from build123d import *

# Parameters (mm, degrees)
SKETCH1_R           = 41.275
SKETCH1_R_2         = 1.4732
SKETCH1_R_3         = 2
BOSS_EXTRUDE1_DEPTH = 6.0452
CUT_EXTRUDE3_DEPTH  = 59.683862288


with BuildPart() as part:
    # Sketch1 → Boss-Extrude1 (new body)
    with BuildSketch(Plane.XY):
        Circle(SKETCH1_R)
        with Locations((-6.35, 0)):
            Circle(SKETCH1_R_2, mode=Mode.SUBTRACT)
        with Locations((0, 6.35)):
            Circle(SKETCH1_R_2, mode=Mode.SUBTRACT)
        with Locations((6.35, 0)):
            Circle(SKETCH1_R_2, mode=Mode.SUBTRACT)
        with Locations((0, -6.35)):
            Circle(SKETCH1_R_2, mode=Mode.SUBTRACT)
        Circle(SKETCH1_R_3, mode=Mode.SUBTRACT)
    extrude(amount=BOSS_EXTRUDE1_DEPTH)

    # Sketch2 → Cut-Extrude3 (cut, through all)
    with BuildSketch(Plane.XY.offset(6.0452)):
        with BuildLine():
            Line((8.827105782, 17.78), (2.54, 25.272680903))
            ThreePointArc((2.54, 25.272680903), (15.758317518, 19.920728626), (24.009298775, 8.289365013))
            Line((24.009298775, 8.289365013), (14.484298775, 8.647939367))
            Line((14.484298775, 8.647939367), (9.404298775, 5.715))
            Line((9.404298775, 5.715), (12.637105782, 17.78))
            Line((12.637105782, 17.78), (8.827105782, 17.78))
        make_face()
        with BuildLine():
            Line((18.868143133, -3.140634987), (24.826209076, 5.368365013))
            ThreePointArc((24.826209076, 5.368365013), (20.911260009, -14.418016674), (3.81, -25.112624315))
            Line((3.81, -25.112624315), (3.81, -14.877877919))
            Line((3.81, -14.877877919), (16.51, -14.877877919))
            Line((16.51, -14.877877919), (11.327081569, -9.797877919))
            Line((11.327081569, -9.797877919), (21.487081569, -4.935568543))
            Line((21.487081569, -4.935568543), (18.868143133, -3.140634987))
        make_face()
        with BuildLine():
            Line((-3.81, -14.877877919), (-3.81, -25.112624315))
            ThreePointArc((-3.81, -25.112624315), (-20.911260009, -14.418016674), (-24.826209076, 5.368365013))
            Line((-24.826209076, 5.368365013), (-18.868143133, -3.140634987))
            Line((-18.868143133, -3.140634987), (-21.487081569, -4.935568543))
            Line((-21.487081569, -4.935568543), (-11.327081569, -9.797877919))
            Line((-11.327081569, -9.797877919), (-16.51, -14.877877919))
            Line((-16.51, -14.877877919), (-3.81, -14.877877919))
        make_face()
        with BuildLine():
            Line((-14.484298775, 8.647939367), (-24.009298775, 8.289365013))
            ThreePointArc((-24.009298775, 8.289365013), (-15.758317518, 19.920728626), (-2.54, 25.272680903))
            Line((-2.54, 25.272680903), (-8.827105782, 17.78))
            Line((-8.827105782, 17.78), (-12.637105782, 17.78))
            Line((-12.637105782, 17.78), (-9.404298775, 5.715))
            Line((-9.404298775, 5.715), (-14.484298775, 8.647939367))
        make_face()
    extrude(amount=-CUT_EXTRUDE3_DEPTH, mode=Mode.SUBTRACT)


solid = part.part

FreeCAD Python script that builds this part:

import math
import FreeCAD as App
import Part
import Sketcher
Q = App.Units.Quantity

doc = App.newDocument("Part")
params = doc.addObject("Spreadsheet::Sheet", "Params")
for row, (alias, value) in enumerate([
    ("sketch1_diameter", "3.25 in"),
    ("sketch1_diameter2", "0.116 in"),
    ("pad1_length", "0.238 in"),
    ("sketch2_radius", "1 in"),
    ("sketch2_width", "0.5 in"),
    ("sketch2_width2", "0.15 in"),
    ("sketch2_length", "0.125 in"),
], start=1):
    params.set(f"A{row}", alias)
    params.set(f"B{row}", "=" + value)
    params.setAlias(f"B{row}", alias)

body = doc.addObject("PartDesign::Body", "Body")

# Sketch on XY plane
sketch1 = doc.addObject("Sketcher::SketchObject", "Sketch")
body.addObject(sketch1)
sketch1.AttachmentSupport = (doc.XY_Plane, [""])
sketch1.MapMode = "FlatFace"
sketch1.addGeometry([
    Part.Circle(App.Vector(0, 0, 0), App.Vector(0, 0, 1), 41.275),  # 0
    Part.Circle(App.Vector(0, -6.35, 0), App.Vector(0, 0, 1), 1.4732),  # 1
    Part.Circle(App.Vector(-6.35, 0, 0), App.Vector(0, 0, 1), 1.4732),  # 2
    Part.Circle(App.Vector(0, 0, 0), App.Vector(0, 0, 1), 2),  # 3
    Part.Circle(App.Vector(6.35, 0, 0), App.Vector(0, 0, 1), 1.4732),  # 4
    Part.Circle(App.Vector(0, 6.35, 0), App.Vector(0, 0, 1), 1.4732),  # 5
], False)
sketch1.addConstraint([
    Sketcher.Constraint("Coincident", 0, 3, -1, 1),
    Sketcher.Constraint("Coincident", 3, 3, -1, 1),
    Sketcher.Constraint("Equal", 1, 2),
    Sketcher.Constraint("Equal", 2, 4),
    Sketcher.Constraint("Equal", 4, 5),
    Sketcher.Constraint("Symmetric", 2, 3, 4, 3, -1, 1),
    Sketcher.Constraint("Symmetric", 1, 3, 5, 3, -1, 1),
    Sketcher.Constraint("PointOnObject", 1, 3, -2),
    Sketcher.Constraint("PointOnObject", 2, 3, -1),
    Sketcher.Constraint("Diameter", 0, Q("3.25 in")),
    Sketcher.Constraint("Diameter", 1, Q("0.116 in")),
    Sketcher.Constraint("DistanceX", 2, 3, 4, 3, Q("0.5 in")),
    Sketcher.Constraint("DistanceY", 1, 3, 5, 3, Q("0.5 in")),
    Sketcher.Constraint("Diameter", 3, 4.0),
])
sketch1.setExpression("Constraints[9]", "Params.sketch1_diameter")
sketch1.setExpression("Constraints[10]", "Params.sketch1_diameter2")
pad1 = doc.addObject("PartDesign::Pad", "Pad")
body.addObject(pad1)
pad1.Profile = sketch1
pad1.setExpression("Length", "Params.pad1_length")

# Sketch on XY plane
sketch2 = doc.addObject("Sketcher::SketchObject", "Sketch001")
body.addObject(sketch2)
sketch2.AttachmentSupport = (doc.XY_Plane, [""])
sketch2.MapMode = "FlatFace"
sketch2.AttachmentOffset = App.Placement(App.Vector(0, 0, 0.238 * 25.4), App.Rotation())
sketch2.addGeometry([
    Part.LineSegment(App.Vector(2.54, 25.272681, 0), App.Vector(8.827106, 17.78, 0)),  # 0
    Part.LineSegment(App.Vector(8.827106, 17.78, 0), App.Vector(12.637106, 17.78, 0)),  # 1
    Part.LineSegment(App.Vector(12.637106, 17.78, 0), App.Vector(9.404299, 5.715, 0)),  # 2
    Part.LineSegment(App.Vector(9.404299, 5.715, 0), App.Vector(14.484299, 8.647939, 0)),  # 3
    Part.LineSegment(App.Vector(14.484299, 8.647939, 0), App.Vector(24.009299, 8.289365, 0)),  # 4
    Part.ArcOfCircle(Part.Circle(App.Vector(0, 0, 0), App.Vector(0, 0, 1), 25.4), math.radians(19.047563), math.radians(84.26083)),  # 5
    Part.LineSegment(App.Vector(24.826209, 5.368365, 0), App.Vector(18.868143, -3.140635, 0)),  # 6
    Part.LineSegment(App.Vector(18.868143, -3.140635, 0), App.Vector(21.487082, -4.935569, 0)),  # 7
    Part.LineSegment(App.Vector(21.487082, -4.935569, 0), App.Vector(11.327082, -9.797878, 0)),  # 8
    Part.LineSegment(App.Vector(11.327082, -9.797878, 0), App.Vector(16.51, -14.877878, 0)),  # 9
    Part.LineSegment(App.Vector(16.51, -14.877878, 0), App.Vector(3.81, -14.877878, 0)),  # 10
    Part.LineSegment(App.Vector(3.81, -14.877878, 0), App.Vector(3.81, -25.112624, 0)),  # 11
    Part.ArcOfCircle(Part.Circle(App.Vector(0, 0, 0), App.Vector(0, 0, 1), 25.4), math.radians(-81.373073), math.radians(12.201651)),  # 12
    Part.LineSegment(App.Vector(-3.81, -25.112624, 0), App.Vector(-3.81, -14.877878, 0)),  # 13
    Part.LineSegment(App.Vector(-3.81, -14.877878, 0), App.Vector(-16.51, -14.877878, 0)),  # 14
    Part.LineSegment(App.Vector(-16.51, -14.877878, 0), App.Vector(-11.327082, -9.797878, 0)),  # 15
    Part.LineSegment(App.Vector(-11.327082, -9.797878, 0), App.Vector(-21.487082, -4.935569, 0)),  # 16
    Part.LineSegment(App.Vector(-21.487082, -4.935569, 0), App.Vector(-18.868143, -3.140635, 0)),  # 17
    Part.LineSegment(App.Vector(-18.868143, -3.140635, 0), App.Vector(-24.826209, 5.368365, 0)),  # 18
    Part.ArcOfCircle(Part.Circle(App.Vector(0, 0, 0), App.Vector(0, 0, 1), 25.4), math.radians(167.798349), math.radians(261.373073)),  # 19
    Part.LineSegment(App.Vector(-24.009299, 8.289365, 0), App.Vector(-14.484299, 8.647939, 0)),  # 20
    Part.LineSegment(App.Vector(-14.484299, 8.647939, 0), App.Vector(-9.404299, 5.715, 0)),  # 21
    Part.LineSegment(App.Vector(-9.404299, 5.715, 0), App.Vector(-12.637106, 17.78, 0)),  # 22
    Part.LineSegment(App.Vector(-12.637106, 17.78, 0), App.Vector(-8.827106, 17.78, 0)),  # 23
    Part.LineSegment(App.Vector(-8.827106, 17.78, 0), App.Vector(-2.54, 25.272681, 0)),  # 24
    Part.ArcOfCircle(Part.Circle(App.Vector(0, 0, 0), App.Vector(0, 0, 1), 25.4), math.radians(95.73917), math.radians(160.952437)),  # 25
], False)
sketch2.addConstraint([
    Sketcher.Constraint("Coincident", 0, 2, 1, 1),
    Sketcher.Constraint("Coincident", 1, 2, 2, 1),
    Sketcher.Constraint("Coincident", 2, 2, 3, 1),
    Sketcher.Constraint("Coincident", 3, 2, 4, 1),
    Sketcher.Constraint("Coincident", 4, 2, 5, 1),
    Sketcher.Constraint("Coincident", 5, 2, 0, 1),
    Sketcher.Constraint("Coincident", 6, 2, 7, 1),
    Sketcher.Constraint("Coincident", 7, 2, 8, 1),
    Sketcher.Constraint("Coincident", 8, 2, 9, 1),
    Sketcher.Constraint("Coincident", 9, 2, 10, 1),
    Sketcher.Constraint("Coincident", 10, 2, 11, 1),
    Sketcher.Constraint("Coincident", 11, 2, 12, 1),
    Sketcher.Constraint("Coincident", 12, 2, 6, 1),
    Sketcher.Constraint("Coincident", 13, 2, 14, 1),
    Sketcher.Constraint("Coincident", 14, 2, 15, 1),
    Sketcher.Constraint("Coincident", 15, 2, 16, 1),
    Sketcher.Constraint("Coincident", 16, 2, 17, 1),
    Sketcher.Constraint("Coincident", 17, 2, 18, 1),
    Sketcher.Constraint("Coincident", 18, 2, 19, 1),
    Sketcher.Constraint("Coincident", 19, 2, 13, 1),
    Sketcher.Constraint("Coincident", 20, 2, 21, 1),
    Sketcher.Constraint("Coincident", 21, 2, 22, 1),
    Sketcher.Constraint("Coincident", 22, 2, 23, 1),
    Sketcher.Constraint("Coincident", 23, 2, 24, 1),
    Sketcher.Constraint("Coincident", 24, 2, 25, 1),
    Sketcher.Constraint("Coincident", 25, 2, 20, 1),
    Sketcher.Constraint("Horizontal", 1),
    Sketcher.Constraint("Horizontal", 10),
    Sketcher.Constraint("Vertical", 11),
    Sketcher.Constraint("Vertical", 13),
    Sketcher.Constraint("Horizontal", 14),
    Sketcher.Constraint("Horizontal", 23),
    Sketcher.Constraint("Coincident", 5, 3, -1, 1),
    Sketcher.Constraint("Coincident", 12, 3, -1, 1),
    Sketcher.Constraint("Coincident", 19, 3, -1, 1),
    Sketcher.Constraint("Coincident", 25, 3, -1, 1),
    Sketcher.Constraint("Equal", 5, 12),
    Sketcher.Constraint("Equal", 12, 19),
    Sketcher.Constraint("Equal", 19, 25),
    Sketcher.Constraint("Symmetric", 10, 2, 13, 2, -2),
    Sketcher.Constraint("Symmetric", 8, 2, 15, 2, -2),
    Sketcher.Constraint("Symmetric", 7, 2, 16, 2, -2),
    Sketcher.Constraint("Symmetric", 6, 2, 17, 2, -2),
    Sketcher.Constraint("Symmetric", 3, 2, 20, 2, -2),
    Sketcher.Constraint("Symmetric", 2, 2, 21, 2, -2),
    Sketcher.Constraint("Symmetric", 1, 2, 22, 2, -2),
    Sketcher.Constraint("Horizontal", 12, 2, 18, 2),
    Sketcher.Constraint("Horizontal", 5, 2, 24, 2),
    Sketcher.Constraint("Horizontal", 4, 2, 25, 2),
    Sketcher.Constraint("Equal", 10, 14),
    Sketcher.Constraint("Equal", 1, 23),
    Sketcher.Constraint("Radius", 5, Q("1 in")),
    Sketcher.Constraint("DistanceX", 10, 2, 10, 1, Q("0.5 in")),
    Sketcher.Constraint("Angle", 0, Q("-50 deg")),
    Sketcher.Constraint("Angle", 2, Q("-105 deg")),
    Sketcher.Constraint("Angle", 3, Q("30 deg")),
    Sketcher.Constraint("Angle", 6, Q("-125 deg")),
    Sketcher.Constraint("DistanceX", 1, 1, 1, 2, Q("0.15 in")),
    Sketcher.Constraint("DistanceY", -1, 1, 0, 2, Q("0.7 in")),
    Sketcher.Constraint("DistanceX", -1, 1, 5, 2, Q("0.1 in")),
    Sketcher.Constraint("DistanceX", 2, 2, 3, 2, Q("0.2 in")),
    Sketcher.Constraint("DistanceX", 8, 2, 7, 2, Q("0.4 in")),
    Sketcher.Constraint("DistanceY", 9, 2, 8, 2, Q("0.2 in")),
    Sketcher.Constraint("DistanceX", 13, 2, 10, 2, Q("0.3 in")),
    Sketcher.Constraint("DistanceY", 6, 2, 4, 2, Q("0.45 in")),
    Sketcher.Constraint("Distance", 7, Q("0.125 in")),
    Sketcher.Constraint("DistanceY", -1, 1, 2, 2, Q("0.225 in")),
    Sketcher.Constraint("DistanceX", 3, 2, 4, 2, Q("0.375 in")),
    Sketcher.Constraint("DistanceY", 12, 2, 4, 2, Q("0.115 in")),
    Sketcher.Constraint("DistanceX", 7, 2, 4, 2, Q("0.0992999 in")),
    Sketcher.Constraint("DistanceY", 11, 2, 11, 1, 10.234746),
])
sketch2.setExpression("Constraints[51]", "Params.sketch2_radius")
sketch2.setExpression("Constraints[52]", "Params.sketch2_width")
sketch2.setExpression("Constraints[57]", "Params.sketch2_width2")
sketch2.setExpression("Constraints[65]", "Params.sketch2_length")
pocket1 = doc.addObject("PartDesign::Pocket", "Pocket")
body.addObject(pocket1)
pocket1.Profile = sketch2
pocket1.Type = "ThroughAll"

doc.recompute()
